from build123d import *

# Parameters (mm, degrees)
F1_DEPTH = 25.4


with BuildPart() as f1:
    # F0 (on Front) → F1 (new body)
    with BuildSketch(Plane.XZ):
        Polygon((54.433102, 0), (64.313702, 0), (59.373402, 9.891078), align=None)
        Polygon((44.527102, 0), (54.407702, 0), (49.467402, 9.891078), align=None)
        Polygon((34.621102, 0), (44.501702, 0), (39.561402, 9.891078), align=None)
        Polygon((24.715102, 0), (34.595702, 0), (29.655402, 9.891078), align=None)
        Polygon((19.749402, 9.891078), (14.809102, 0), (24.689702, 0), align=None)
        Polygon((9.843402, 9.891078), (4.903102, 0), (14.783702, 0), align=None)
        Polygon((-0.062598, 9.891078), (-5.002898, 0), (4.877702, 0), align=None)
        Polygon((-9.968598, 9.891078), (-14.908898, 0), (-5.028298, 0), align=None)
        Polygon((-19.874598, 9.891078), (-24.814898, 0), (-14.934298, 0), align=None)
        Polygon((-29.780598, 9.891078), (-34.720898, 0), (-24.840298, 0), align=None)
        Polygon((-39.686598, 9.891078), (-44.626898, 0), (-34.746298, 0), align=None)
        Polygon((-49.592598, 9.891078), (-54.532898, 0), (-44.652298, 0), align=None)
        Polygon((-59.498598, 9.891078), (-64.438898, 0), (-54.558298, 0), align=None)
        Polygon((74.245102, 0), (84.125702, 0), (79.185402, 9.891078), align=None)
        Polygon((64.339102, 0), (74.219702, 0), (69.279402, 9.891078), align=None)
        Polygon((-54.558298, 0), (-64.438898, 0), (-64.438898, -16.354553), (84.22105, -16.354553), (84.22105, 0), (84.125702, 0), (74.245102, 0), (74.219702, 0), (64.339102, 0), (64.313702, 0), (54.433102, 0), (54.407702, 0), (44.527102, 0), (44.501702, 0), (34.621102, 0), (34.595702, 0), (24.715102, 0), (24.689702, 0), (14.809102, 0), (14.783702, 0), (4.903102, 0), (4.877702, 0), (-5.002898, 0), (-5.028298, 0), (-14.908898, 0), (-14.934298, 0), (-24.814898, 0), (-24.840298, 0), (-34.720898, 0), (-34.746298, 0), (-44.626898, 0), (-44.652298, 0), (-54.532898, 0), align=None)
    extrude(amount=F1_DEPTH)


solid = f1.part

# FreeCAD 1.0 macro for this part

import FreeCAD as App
import Part
import Sketcher
Q = App.Units.Quantity

doc = App.newDocument("Part")
params = doc.addObject("Spreadsheet::Sheet", "Params")
for row, (alias, value) in enumerate([
    ("sketch1_width", "0.001 in"),
    ("pad1_length", "1 in"),
], start=1):
    params.set(f"A{row}", alias)
    params.set(f"B{row}", "=" + value)
    params.setAlias(f"B{row}", alias)

body = doc.addObject("PartDesign::Body", "Body")

# Sketch on XZ plane
sketch1 = body.newObject("Sketcher::SketchObject", "Sketch")
sketch1.AttachmentSupport = (doc.getObject("XZ_Plane"), [""])
sketch1.MapMode = "FlatFace"
sketch1.addGeometry(Part.LineSegment(App.Vector(64.313702, 0, 0), App.Vector(59.373402, 9.891078, 0)), False)
sketch1.addGeometry(Part.LineSegment(App.Vector(59.373402, 9.891078, 0), App.Vector(54.433102, 0, 0)), False)
sketch1.addGeometry(Part.LineSegment(App.Vector(54.433102, 0, 0), App.Vector(54.407702, 0, 0)), False)
sketch1.addGeometry(Part.LineSegment(App.Vector(54.407702, 0, 0), App.Vector(49.467402, 9.891078, 0)), False)
sketch1.addGeometry(Part.LineSegment(App.Vector(49.467402, 9.891078, 0), App.Vector(44.527102, 0, 0)), False)
sketch1.addGeometry(Part.LineSegment(App.Vector(44.527102, 0, 0), App.Vector(44.501702, 0, 0)), False)
sketch1.addGeometry(Part.LineSegment(App.Vector(44.501702, 0, 0), App.Vector(39.561402, 9.891078, 0)), False)
sketch1.addGeometry(Part.LineSegment(App.Vector(39.561402, 9.891078, 0), App.Vector(34.621102, 0, 0)), False)
sketch1.addGeometry(Part.LineSegment(App.Vector(34.621102, 0, 0), App.Vector(34.595702, 0, 0)), False)
sketch1.addGeometry(Part.LineSegment(App.Vector(34.595702, 0, 0), App.Vector(29.655402, 9.891078, 0)), False)
sketch1.addGeometry(Part.LineSegment(App.Vector(29.655402, 9.891078, 0), App.Vector(24.715102, 0, 0)), False)
sketch1.addGeometry(Part.LineSegment(App.Vector(24.715102, 0, 0), App.Vector(24.689702, 0, 0)), False)
sketch1.addGeometry(Part.LineSegment(App.Vector(24.689702, 0, 0), App.Vector(19.749402, 9.891078, 0)), False)
sketch1.addGeometry(Part.LineSegment(App.Vector(19.749402, 9.891078, 0), App.Vector(14.809102, 0, 0)), False)
sketch1.addGeometry(Part.LineSegment(App.Vector(14.809102, 0, 0), App.Vector(14.783702, 0, 0)), False)
sketch1.addGeometry(Part.LineSegment(App.Vector(14.783702, 0, 0), App.Vector(9.843402, 9.891078, 0)), False)
sketch1.addGeometry(Part.LineSegment(App.Vector(9.843402, 9.891078, 0), App.Vector(4.903102, 0, 0)), False)
sketch1.addGeometry(Part.LineSegment(App.Vector(4.903102, 0, 0), App.Vector(4.877702, 0, 0)), False)
sketch1.addGeometry(Part.LineSegment(App.Vector(4.877702, 0, 0), App.Vector(-0.062598, 9.891078, 0)), False)
sketch1.addGeometry(Part.LineSegment(App.Vector(-0.062598, 9.891078, 0), App.Vector(-5.002898, 0, 0)), False)
sketch1.addGeometry(Part.LineSegment(App.Vector(-5.002898, 0, 0), App.Vector(-5.028298, 0, 0)), False)
sketch1.addGeometry(Part.LineSegment(App.Vector(-5.028298, 0, 0), App.Vector(-9.968598, 9.891078, 0)), False)
sketch1.addGeometry(Part.LineSegment(App.Vector(-9.968598, 9.891078, 0), App.Vector(-14.908898, 0, 0)), False)
sketch1.addGeometry(Part.LineSegment(App.Vector(-14.908898, 0, 0), App.Vector(-14.934298, 0, 0)), False)
sketch1.addGeometry(Part.LineSegment(App.Vector(-14.934298, 0, 0), App.Vector(-19.874598, 9.891078, 0)), False)
sketch1.addGeometry(Part.LineSegment(App.Vector(-19.874598, 9.891078, 0), App.Vector(-24.814898, 0, 0)), False)
sketch1.addGeometry(Part.LineSegment(App.Vector(-24.814898, 0, 0), App.Vector(-24.840298, 0, 0)), False)
sketch1.addGeometry(Part.LineSegment(App.Vector(-24.840298, 0, 0), App.Vector(-29.780598, 9.891078, 0)), False)
sketch1.addGeometry(Part.LineSegment(App.Vector(-29.780598, 9.891078, 0), App.Vector(-34.720898, 0, 0)), False)
sketch1.addGeometry(Part.LineSegment(App.Vector(-34.720898, 0, 0), App.Vector(-34.746298, 0, 0)), False)
sketch1.addGeometry(Part.LineSegment(App.Vector(-34.746298, 0, 0), App.Vector(-39.686598, 9.891078, 0)), False)
sketch1.addGeometry(Part.LineSegment(App.Vector(-39.686598, 9.891078, 0), App.Vector(-44.626898, 0, 0)), False)
sketch1.addGeometry(Part.LineSegment(App.Vector(-44.626898, 0, 0), App.Vector(-44.652298, 0, 0)), False)
sketch1.addGeometry(Part.LineSegment(App.Vector(-44.652298, 0, 0), App.Vector(-49.592598, 9.891078, 0)), False)
sketch1.addGeometry(Part.LineSegment(App.Vector(-49.592598, 9.891078, 0), App.Vector(-54.532898, 0, 0)), False)
sketch1.addGeometry(Part.LineSegment(App.Vector(-54.532898, 0, 0), App.Vector(-54.558298, 0, 0)), False)
sketch1.addGeometry(Part.LineSegment(App.Vector(-54.558298, 0, 0), App.Vector(-59.498598, 9.891078, 0)), False)
sketch1.addGeometry(Part.LineSegment(App.Vector(-59.498598, 9.891078, 0), App.Vector(-64.438898, 0, 0)), False)
sketch1.addGeometry(Part.LineSegment(App.Vector(-64.438898, 0, 0), App.Vector(-64.438898, -16.354553, 0)), False)
sketch1.addGeometry(Part.LineSegment(App.Vector(-64.438898, -16.354553, 0), App.Vector(84.22105, -16.354553, 0)), False)
sketch1.addGeometry(Part.LineSegment(App.Vector(84.22105, -16.354553, 0), App.Vector(84.22105, 0, 0)), False)
sketch1.addGeometry(Part.LineSegment(App.Vector(84.22105, 0, 0), App.Vector(84.125702, 0, 0)), False)
sketch1.addGeometry(Part.LineSegment(App.Vector(84.125702, 0, 0), App.Vector(79.185402, 9.891078, 0)), False)
sketch1.addGeometry(Part.LineSegment(App.Vector(79.185402, 9.891078, 0), App.Vector(74.245102, 0, 0)), False)
sketch1.addGeometry(Part.LineSegment(App.Vector(74.245102, 0, 0), App.Vector(74.219702, 0, 0)), False)
sketch1.addGeometry(Part.LineSegment(App.Vector(74.219702, 0, 0), App.Vector(69.279402, 9.891078, 0)), False)
sketch1.addGeometry(Part.LineSegment(App.Vector(69.279402, 9.891078, 0), App.Vector(64.339102, 0, 0)), False)
sketch1.addGeometry(Part.LineSegment(App.Vector(64.339102, 0, 0), App.Vector(64.313702, 0, 0)), False)
sketch1.addConstraint(Sketcher.Constraint("Coincident", 0, 2, 1, 1))
sketch1.addConstraint(Sketcher.Constraint("Coincident", 1, 2, 2, 1))
sketch1.addConstraint(Sketcher.Constraint("Coincident", 2, 2, 3, 1))
sketch1.addConstraint(Sketcher.Constraint("Coincident", 3, 2, 4, 1))
sketch1.addConstraint(Sketcher.Constraint("Coincident", 4, 2, 5, 1))
sketch1.addConstraint(Sketcher.Constraint("Coincident", 5, 2, 6, 1))
sketch1.addConstraint(Sketcher.Constraint("Coincident", 6, 2, 7, 1))
sketch1.addConstraint(Sketcher.Constraint("Coincident", 7, 2, 8, 1))
sketch1.addConstraint(Sketcher.Constraint("Coincident", 8, 2, 9, 1))
sketch1.addConstraint(Sketcher.Constraint("Coincident", 9, 2, 10, 1))
sketch1.addConstraint(Sketcher.Constraint("Coincident", 10, 2, 11, 1))
sketch1.addConstraint(Sketcher.Constraint("Coincident", 11, 2, 12, 1))
sketch1.addConstraint(Sketcher.Constraint("Coincident", 12, 2, 13, 1))
sketch1.addConstraint(Sketcher.Constraint("Coincident", 13, 2, 14, 1))
sketch1.addConstraint(Sketcher.Constraint("Coincident", 14, 2, 15, 1))
sketch1.addConstraint(Sketcher.Constraint("Coincident", 15, 2, 16, 1))
sketch1.addConstraint(Sketcher.Constraint("Coincident", 16, 2, 17, 1))
sketch1.addConstraint(Sketcher.Constraint("Coincident", 17, 2, 18, 1))
sketch1.addConstraint(Sketcher.Constraint("Coincident", 18, 2, 19, 1))
sketch1.addConstraint(Sketcher.Constraint("Coincident", 19, 2, 20, 1))
sketch1.addConstraint(Sketcher.Constraint("Coincident", 20, 2, 21, 1))
sketch1.addConstraint(Sketcher.Constraint("Coincident", 21, 2, 22, 1))
sketch1.addConstraint(Sketcher.Constraint("Coincident", 22, 2, 23, 1))
sketch1.addConstraint(Sketcher.Constraint("Coincident", 23, 2, 24, 1))
sketch1.addConstraint(Sketcher.Constraint("Coincident", 24, 2, 25, 1))
sketch1.addConstraint(Sketcher.Constraint("Coincident", 25, 2, 26, 1))
sketch1.addConstraint(Sketcher.Constraint("Coincident", 26, 2, 27, 1))
sketch1.addConstraint(Sketcher.Constraint("Coincident", 27, 2, 28, 1))
sketch1.addConstraint(Sketcher.Constraint("Coincident", 28, 2, 29, 1))
sketch1.addConstraint(Sketcher.Constraint("Coincident", 29, 2, 30, 1))
sketch1.addConstraint(Sketcher.Constraint("Coincident", 30, 2, 31, 1))
sketch1.addConstraint(Sketcher.Constraint("Coincident", 31, 2, 32, 1))
sketch1.addConstraint(Sketcher.Constraint("Coincident", 32, 2, 33, 1))
sketch1.addConstraint(Sketcher.Constraint("Coincident", 33, 2, 34, 1))
sketch1.addConstraint(Sketcher.Constraint("Coincident", 34, 2, 35, 1))
sketch1.addConstraint(Sketcher.Constraint("Coincident", 35, 2, 36, 1))
sketch1.addConstraint(Sketcher.Constraint("Coincident", 36, 2, 37, 1))
sketch1.addConstraint(Sketcher.Constraint("Coincident", 37, 2, 38, 1))
sketch1.addConstraint(Sketcher.Constraint("Coincident", 38, 2, 39, 1))
sketch1.addConstraint(Sketcher.Constraint("Coincident", 39, 2, 40, 1))
sketch1.addConstraint(Sketcher.Constraint("Coincident", 40, 2, 41, 1))
sketch1.addConstraint(Sketcher.Constraint("Coincident", 41, 2, 42, 1))
sketch1.addConstraint(Sketcher.Constraint("Coincident", 42, 2, 43, 1))
sketch1.addConstraint(Sketcher.Constraint("Coincident", 43, 2, 44, 1))
sketch1.addConstraint(Sketcher.Constraint("Coincident", 44, 2, 45, 1))
sketch1.addConstraint(Sketcher.Constraint("Coincident", 45, 2, 46, 1))
sketch1.addConstraint(Sketcher.Constraint("Coincident", 46, 2, 47, 1))
sketch1.addConstraint(Sketcher.Constraint("Coincident", 47, 2, 0, 1))
sketch1.addConstraint(Sketcher.Constraint("Horizontal", 2))
sketch1.addConstraint(Sketcher.Constraint("Horizontal", 5))
sketch1.addConstraint(Sketcher.Constraint("Horizontal", 8))
sketch1.addConstraint(Sketcher.Constraint("Horizontal", 11))
sketch1.addConstraint(Sketcher.Constraint("Horizontal", 14))
sketch1.addConstraint(Sketcher.Constraint("Horizontal", 17))
sketch1.addConstraint(Sketcher.Constraint("Horizontal", 20))
sketch1.addConstraint(Sketcher.Constraint("Horizontal", 23))
sketch1.addConstraint(Sketcher.Constraint("Horizontal", 26))
sketch1.addConstraint(Sketcher.Constraint("Horizontal", 29))
sketch1.addConstraint(Sketcher.Constraint("Horizontal", 32))
sketch1.addConstraint(Sketcher.Constraint("Horizontal", 35))
sketch1.addConstraint(Sketcher.Constraint("Vertical", 38))
sketch1.addConstraint(Sketcher.Constraint("Horizontal", 39))
sketch1.addConstraint(Sketcher.Constraint("Vertical", 40))
sketch1.addConstraint(Sketcher.Constraint("Horizontal", 41))
sketch1.addConstraint(Sketcher.Constraint("Horizontal", 44))
sketch1.addConstraint(Sketcher.Constraint("Horizontal", 47))
sketch1.addConstraint(Sketcher.Constraint("PointOnObject", 1, 2, -1))
sketch1.addConstraint(Sketcher.Constraint("PointOnObject", 4, 2, -1))
sketch1.addConstraint(Sketcher.Constraint("PointOnObject", 7, 2, -1))
sketch1.addConstraint(Sketcher.Constraint("PointOnObject", 10, 2, -1))
sketch1.addConstraint(Sketcher.Constraint("PointOnObject", 13, 2, -1))
sketch1.addConstraint(Sketcher.Constraint("PointOnObject", 16, 2, -1))
sketch1.addConstraint(Sketcher.Constraint("PointOnObject", 19, 2, -1))
sketch1.addConstraint(Sketcher.Constraint("PointOnObject", 22, 2, -1))
sketch1.addConstraint(Sketcher.Constraint("PointOnObject", 25, 2, -1))
sketch1.addConstraint(Sketcher.Constraint("PointOnObject", 28, 2, -1))
sketch1.addConstraint(Sketcher.Constraint("PointOnObject", 31, 2, -1))
sketch1.addConstraint(Sketcher.Constraint("PointOnObject", 34, 2, -1))
sketch1.addConstraint(Sketcher.Constraint("PointOnObject", 37, 2, -1))
sketch1.addConstraint(Sketcher.Constraint("PointOnObject", 40, 2, -1))
sketch1.addConstraint(Sketcher.Constraint("PointOnObject", 43, 2, -1))
sketch1.addConstraint(Sketcher.Constraint("PointOnObject", 46, 2, -1))
sketch1.addConstraint(Sketcher.Constraint("Parallel", 0, 3))
sketch1.addConstraint(Sketcher.Constraint("Parallel", 1, 4))
sketch1.addConstraint(Sketcher.Constraint("Parallel", 3, 6))
sketch1.addConstraint(Sketcher.Constraint("Parallel", 4, 7))
sketch1.addConstraint(Sketcher.Constraint("Parallel", 6, 9))
sketch1.addConstraint(Sketcher.Constraint("Parallel", 7, 10))
sketch1.addConstraint(Sketcher.Constraint("Parallel", 9, 12))
sketch1.addConstraint(Sketcher.Constraint("Parallel", 10, 13))
sketch1.addConstraint(Sketcher.Constraint("Parallel", 12, 15))
sketch1.addConstraint(Sketcher.Constraint("Parallel", 13, 16))
sketch1.addConstraint(Sketcher.Constraint("Parallel", 15, 18))
sketch1.addConstraint(Sketcher.Constraint("Parallel", 16, 19))
sketch1.addConstraint(Sketcher.Constraint("Parallel", 18, 21))
sketch1.addConstraint(Sketcher.Constraint("Parallel", 19, 22))
sketch1.addConstraint(Sketcher.Constraint("Parallel", 21, 24))
sketch1.addConstraint(Sketcher.Constraint("Parallel", 22, 25))
sketch1.addConstraint(Sketcher.Constraint("Parallel", 24, 27))
sketch1.addConstraint(Sketcher.Constraint("Parallel", 25, 28))
sketch1.addConstraint(Sketcher.Constraint("Parallel", 27, 30))
sketch1.addConstraint(Sketcher.Constraint("Parallel", 28, 31))
sketch1.addConstraint(Sketcher.Constraint("Parallel", 30, 33))
sketch1.addConstraint(Sketcher.Constraint("Parallel", 31, 34))
sketch1.addConstraint(Sketcher.Constraint("Parallel", 33, 36))
sketch1.addConstraint(Sketcher.Constraint("Parallel", 34, 37))
sketch1.addConstraint(Sketcher.Constraint("Parallel", 36, 42))
sketch1.addConstraint(Sketcher.Constraint("Parallel", 37, 43))
sketch1.addConstraint(Sketcher.Constraint("Parallel", 42, 45))
sketch1.addConstraint(Sketcher.Constraint("Parallel", 43, 46))
sketch1.addConstraint(Sketcher.Constraint("Horizontal", 0, 2, 3, 2))
sketch1.addConstraint(Sketcher.Constraint("Horizontal", 3, 2, 6, 2))
sketch1.addConstraint(Sketcher.Constraint("Horizontal", 6, 2, 9, 2))
sketch1.addConstraint(Sketcher.Constraint("Horizontal", 9, 2, 12, 2))
sketch1.addConstraint(Sketcher.Constraint("Horizontal", 12, 2, 15, 2))
sketch1.addConstraint(Sketcher.Constraint("Horizontal", 15, 2, 18, 2))
sketch1.addConstraint(Sketcher.Constraint("Horizontal", 18, 2, 21, 2))
sketch1.addConstraint(Sketcher.Constraint("Horizontal", 21, 2, 24, 2))
sketch1.addConstraint(Sketcher.Constraint("Horizontal", 24, 2, 27, 2))
sketch1.addConstraint(Sketcher.Constraint("Horizontal", 27, 2, 30, 2))
sketch1.addConstraint(Sketcher.Constraint("Horizontal", 30, 2, 33, 2))
sketch1.addConstraint(Sketcher.Constraint("Horizontal", 33, 2, 36, 2))
sketch1.addConstraint(Sketcher.Constraint("Horizontal", 36, 2, 42, 2))
sketch1.addConstraint(Sketcher.Constraint("Horizontal", 42, 2, 45, 2))
sketch1.addConstraint(Sketcher.Constraint("Equal", 2, 5))
sketch1.addConstraint(Sketcher.Constraint("Equal", 5, 8))
sketch1.addConstraint(Sketcher.Constraint("Equal", 8, 11))
sketch1.addConstraint(Sketcher.Constraint("Equal", 11, 14))
sketch1.addConstraint(Sketcher.Constraint("Equal", 14, 17))
sketch1.addConstraint(Sketcher.Constraint("Equal", 17, 20))
sketch1.addConstraint(Sketcher.Constraint("Equal", 20, 23))
sketch1.addConstraint(Sketcher.Constraint("Equal", 23, 26))
sketch1.addConstraint(Sketcher.Constraint("Equal", 26, 29))
sketch1.addConstraint(Sketcher.Constraint("Equal", 29, 32))
sketch1.addConstraint(Sketcher.Constraint("Equal", 32, 35))
sketch1.addConstraint(Sketcher.Constraint("Equal", 35, 44))
sketch1.addConstraint(Sketcher.Constraint("Equal", 44, 47))
sketch1.addConstraint(Sketcher.Constraint("Equal", 0, 1))
sketch1.addConstraint(Sketcher.Constraint("DistanceX", 2, 2, 2, 1, Q("0.001 in")))
sketch1.addConstraint(Sketcher.Constraint("DistanceX", 3, 2, 0, 2, Q("0.39 in")))
sketch1.addConstraint(Sketcher.Constraint("DistanceX", 41, 2, 41, 1, Q("0.095348 mm")))
sketch1.addConstraint(Sketcher.Constraint("DistanceX", -1, 1, 1, 2, Q("54.433102 mm")))
sketch1.addConstraint(Sketcher.Constraint("Distance", 0, Q("11.056219 mm")))
sketch1.addConstraint(Sketcher.Constraint("DistanceY", 38, 2, 38, 1, Q("16.354553 mm")))
sketch1.setExpression("Constraints[138]", "Params.sketch1_width")
pad1 = body.newObject("PartDesign::Pad", "Pad")
pad1.Profile = sketch1
pad1.setExpression("Length", "Params.pad1_length")

doc.recompute()
